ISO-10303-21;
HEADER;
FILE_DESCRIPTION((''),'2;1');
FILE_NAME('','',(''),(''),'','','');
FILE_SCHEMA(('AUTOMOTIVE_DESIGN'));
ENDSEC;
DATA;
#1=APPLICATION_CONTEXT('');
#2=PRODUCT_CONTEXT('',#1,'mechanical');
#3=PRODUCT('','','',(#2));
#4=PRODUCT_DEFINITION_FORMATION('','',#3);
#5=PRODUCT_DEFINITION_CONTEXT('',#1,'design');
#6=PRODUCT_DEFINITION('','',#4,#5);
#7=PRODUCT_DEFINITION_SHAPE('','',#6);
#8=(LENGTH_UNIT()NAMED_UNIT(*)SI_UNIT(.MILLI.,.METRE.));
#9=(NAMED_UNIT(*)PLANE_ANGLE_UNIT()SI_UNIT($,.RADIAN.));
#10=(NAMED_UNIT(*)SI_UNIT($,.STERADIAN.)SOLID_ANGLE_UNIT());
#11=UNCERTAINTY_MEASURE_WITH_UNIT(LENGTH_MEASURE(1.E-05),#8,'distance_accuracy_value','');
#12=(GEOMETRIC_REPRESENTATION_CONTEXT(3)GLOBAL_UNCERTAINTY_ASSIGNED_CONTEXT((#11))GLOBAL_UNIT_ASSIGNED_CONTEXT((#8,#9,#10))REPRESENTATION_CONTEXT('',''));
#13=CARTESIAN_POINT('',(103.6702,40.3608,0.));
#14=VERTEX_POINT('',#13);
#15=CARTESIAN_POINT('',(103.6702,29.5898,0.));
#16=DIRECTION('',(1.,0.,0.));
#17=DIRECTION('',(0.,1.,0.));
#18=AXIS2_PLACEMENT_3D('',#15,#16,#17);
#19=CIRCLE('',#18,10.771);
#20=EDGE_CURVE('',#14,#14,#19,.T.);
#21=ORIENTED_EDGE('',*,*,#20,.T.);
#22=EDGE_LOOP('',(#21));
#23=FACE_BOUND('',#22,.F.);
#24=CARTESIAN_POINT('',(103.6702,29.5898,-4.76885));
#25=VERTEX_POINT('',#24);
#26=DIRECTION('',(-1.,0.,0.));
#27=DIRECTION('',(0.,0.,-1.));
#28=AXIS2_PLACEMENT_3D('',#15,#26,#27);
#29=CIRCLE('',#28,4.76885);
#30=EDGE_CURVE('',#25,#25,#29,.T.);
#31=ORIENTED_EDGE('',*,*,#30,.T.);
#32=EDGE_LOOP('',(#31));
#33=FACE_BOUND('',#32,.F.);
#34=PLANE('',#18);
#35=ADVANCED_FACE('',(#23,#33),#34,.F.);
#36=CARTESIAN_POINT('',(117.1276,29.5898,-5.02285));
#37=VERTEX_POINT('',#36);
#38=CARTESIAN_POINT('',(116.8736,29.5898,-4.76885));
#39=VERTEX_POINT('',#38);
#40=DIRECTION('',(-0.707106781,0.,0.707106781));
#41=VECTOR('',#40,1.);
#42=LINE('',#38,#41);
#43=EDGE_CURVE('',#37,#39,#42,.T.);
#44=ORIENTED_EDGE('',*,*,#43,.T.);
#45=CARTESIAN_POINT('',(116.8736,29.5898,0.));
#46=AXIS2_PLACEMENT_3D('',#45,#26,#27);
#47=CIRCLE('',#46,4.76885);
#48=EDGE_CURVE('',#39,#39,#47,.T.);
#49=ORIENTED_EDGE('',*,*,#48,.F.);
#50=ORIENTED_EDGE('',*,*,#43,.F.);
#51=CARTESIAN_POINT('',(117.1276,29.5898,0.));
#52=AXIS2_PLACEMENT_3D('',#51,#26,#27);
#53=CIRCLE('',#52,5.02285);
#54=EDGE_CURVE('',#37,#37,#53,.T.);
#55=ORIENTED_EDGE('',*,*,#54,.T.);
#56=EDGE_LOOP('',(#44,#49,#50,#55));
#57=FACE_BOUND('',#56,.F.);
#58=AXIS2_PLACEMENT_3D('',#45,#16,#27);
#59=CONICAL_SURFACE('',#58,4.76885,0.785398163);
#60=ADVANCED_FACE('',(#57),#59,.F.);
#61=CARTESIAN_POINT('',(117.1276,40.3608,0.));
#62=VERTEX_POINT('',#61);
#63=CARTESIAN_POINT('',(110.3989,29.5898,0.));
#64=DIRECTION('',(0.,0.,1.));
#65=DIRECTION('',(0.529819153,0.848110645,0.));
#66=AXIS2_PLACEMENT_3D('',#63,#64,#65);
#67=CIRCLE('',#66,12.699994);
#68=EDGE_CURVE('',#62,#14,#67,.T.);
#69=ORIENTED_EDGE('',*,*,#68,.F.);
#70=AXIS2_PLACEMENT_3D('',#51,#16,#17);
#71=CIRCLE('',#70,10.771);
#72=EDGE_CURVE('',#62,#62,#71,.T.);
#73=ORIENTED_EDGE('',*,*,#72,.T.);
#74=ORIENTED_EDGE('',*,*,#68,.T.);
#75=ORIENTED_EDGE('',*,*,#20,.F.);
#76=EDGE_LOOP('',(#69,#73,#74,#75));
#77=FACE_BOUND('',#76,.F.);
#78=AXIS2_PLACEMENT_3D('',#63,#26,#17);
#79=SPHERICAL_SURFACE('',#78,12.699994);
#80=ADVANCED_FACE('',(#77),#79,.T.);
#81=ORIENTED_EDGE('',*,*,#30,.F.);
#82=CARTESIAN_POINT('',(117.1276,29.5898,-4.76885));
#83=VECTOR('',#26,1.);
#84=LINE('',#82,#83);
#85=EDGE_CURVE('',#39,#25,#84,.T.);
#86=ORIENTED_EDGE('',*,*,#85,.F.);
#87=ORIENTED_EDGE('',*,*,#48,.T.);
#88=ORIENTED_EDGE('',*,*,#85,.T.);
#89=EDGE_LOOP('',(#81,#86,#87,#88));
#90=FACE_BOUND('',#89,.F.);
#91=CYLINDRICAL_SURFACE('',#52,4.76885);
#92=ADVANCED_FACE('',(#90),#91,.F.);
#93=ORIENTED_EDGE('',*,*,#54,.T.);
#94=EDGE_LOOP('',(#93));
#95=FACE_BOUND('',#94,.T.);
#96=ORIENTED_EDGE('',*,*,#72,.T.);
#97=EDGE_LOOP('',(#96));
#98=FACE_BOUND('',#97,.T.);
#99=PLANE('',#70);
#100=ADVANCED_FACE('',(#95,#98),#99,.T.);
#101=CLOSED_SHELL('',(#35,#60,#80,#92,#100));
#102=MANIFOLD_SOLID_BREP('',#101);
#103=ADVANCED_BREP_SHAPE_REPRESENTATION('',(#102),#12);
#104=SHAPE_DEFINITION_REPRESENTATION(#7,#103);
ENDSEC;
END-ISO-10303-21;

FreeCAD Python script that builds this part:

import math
import FreeCAD as App
import Part
import Sketcher
from FreeCAD import Vector
Q = App.Units.Quantity


def edges_at(feature, points):
    """Names of the edges that pass closest to the given points."""
    edges = feature.Shape.Edges
    near = lambda p: min(range(len(edges)), key=lambda i: edges[i].distToShape(Part.Vertex(*p))[0])
    return sorted({f"Edge{near(p) + 1}" for p in points})

doc = App.newDocument("Part")
params = doc.addObject("Spreadsheet::Sheet", "Params")
for row, (alias, value) in enumerate([
    ("sketch1_radius", "0.5 in"),
    ("revolution_angle", "360 deg"),
    ("hole_diameter", "0.3755 in"),
    ("hole_depth", "1 in"),
    ("chamfer_size", "0.01 in"),
], start=1):
    params.set(f"A{row}", alias)
    params.set(f"B{row}", "=" + value)
    params.setAlias(f"B{row}", alias)

body = doc.addObject("PartDesign::Body", "Body")

sketch1 = body.newObject("Sketcher::SketchObject", "Sketch")
sketch1.AttachmentSupport = (doc.getObject("XY_Plane"), [""])
sketch1.MapMode = "FlatFace"
sketch1.addGeometry([
    Part.ArcOfCircle(Part.Circle(Vector(110.3989, 29.5898, 0), Vector(0, 0, 1), 12.699994), math.radians(58.006763), math.radians(121.993237)),
    Part.LineSegment(Vector(103.6702, 40.3608, 0), Vector(103.6702, 29.5898, 0)),
    Part.LineSegment(Vector(103.6702, 29.5898, 0), Vector(117.1276, 29.5898, 0)),
    Part.LineSegment(Vector(117.1276, 29.5898, 0), Vector(117.1276, 40.3608, 0)),
], False)
sketch1.addGeometry(Part.LineSegment(Vector(103.6702, 29.5898, 0), Vector(117.1276, 29.5898, 0)), True)
sketch1.addConstraint([
    Sketcher.Constraint("Coincident", 0, 2, 1, 1),
    Sketcher.Constraint("Coincident", 1, 2, 2, 1),
    Sketcher.Constraint("Coincident", 2, 2, 3, 1),
    Sketcher.Constraint("Coincident", 3, 2, 0, 1),
    Sketcher.Constraint("Vertical", 1),
    Sketcher.Constraint("Horizontal", 2),
    Sketcher.Constraint("Vertical", 3),
    Sketcher.Constraint("Horizontal", 4),
    Sketcher.Constraint("Coincident", 4, 1, 1, 2),
    Sketcher.Constraint("Horizontal", 0, 3, 1, 2),
    Sketcher.Constraint("Horizontal", 0, 2, 3, 2),
    Sketcher.Constraint("Vertical", 3, 2, 4, 2),
    Sketcher.Constraint("Radius", 0, Q("0.5 in")),
    Sketcher.Constraint("DistanceY", -1, 1, 0, 2, Q("1.589 in")),
    Sketcher.Constraint("DistanceX", 2, 1, 2, 2, 13.4574),
    Sketcher.Constraint("DistanceX", -1, 1, 0, 2, Q("4.0815 in")),
])
sketch1.setExpression("Constraints[12]", "Params.sketch1_radius")
revolution = body.newObject("PartDesign::Revolution", "Revolution")
revolution.Profile = sketch1
revolution.ReferenceAxis = (sketch1, ["Axis0"])
revolution.setExpression("Angle", "Params.revolution_angle")

sketch2 = body.newObject("Sketcher::SketchObject", "Sketch001")
sketch2.AttachmentSupport = (doc.getObject("YZ_Plane"), [""])
sketch2.MapMode = "FlatFace"
sketch2.AttachmentOffset = App.Placement(Vector(0, 0, 117.1276), App.Rotation())
sketch2.addGeometry(Part.Circle(Vector(29.5898, 0, 0), Vector(0, 0, 1), 4.76885), False)
sketch2.addConstraint([
    Sketcher.Constraint("PointOnObject", 0, 3, -1),
    Sketcher.Constraint("Diameter", 0, Q("0.3755 in")),
    Sketcher.Constraint("DistanceX", -1, 1, 0, 3, 29.5898),
])
doc.recompute()
hole = body.newObject("PartDesign::Hole", "Hole")
hole.Profile = sketch2
hole.ThreadType = "None"
hole.setExpression("Diameter", "Params.hole_diameter")
hole.DepthType = "Dimension"
hole.setExpression("Depth", "Params.hole_depth")
hole.DrillPoint = "Angled"
hole.DrillPointAngle = 118
doc.recompute()

chamfer = body.newObject("PartDesign::Chamfer", "Chamfer")
chamfer.Base = (hole, edges_at(hole, [(117.128, 29.59, 4.769)]))
chamfer.setExpression("Size", "Params.chamfer_size")

doc.recompute()
